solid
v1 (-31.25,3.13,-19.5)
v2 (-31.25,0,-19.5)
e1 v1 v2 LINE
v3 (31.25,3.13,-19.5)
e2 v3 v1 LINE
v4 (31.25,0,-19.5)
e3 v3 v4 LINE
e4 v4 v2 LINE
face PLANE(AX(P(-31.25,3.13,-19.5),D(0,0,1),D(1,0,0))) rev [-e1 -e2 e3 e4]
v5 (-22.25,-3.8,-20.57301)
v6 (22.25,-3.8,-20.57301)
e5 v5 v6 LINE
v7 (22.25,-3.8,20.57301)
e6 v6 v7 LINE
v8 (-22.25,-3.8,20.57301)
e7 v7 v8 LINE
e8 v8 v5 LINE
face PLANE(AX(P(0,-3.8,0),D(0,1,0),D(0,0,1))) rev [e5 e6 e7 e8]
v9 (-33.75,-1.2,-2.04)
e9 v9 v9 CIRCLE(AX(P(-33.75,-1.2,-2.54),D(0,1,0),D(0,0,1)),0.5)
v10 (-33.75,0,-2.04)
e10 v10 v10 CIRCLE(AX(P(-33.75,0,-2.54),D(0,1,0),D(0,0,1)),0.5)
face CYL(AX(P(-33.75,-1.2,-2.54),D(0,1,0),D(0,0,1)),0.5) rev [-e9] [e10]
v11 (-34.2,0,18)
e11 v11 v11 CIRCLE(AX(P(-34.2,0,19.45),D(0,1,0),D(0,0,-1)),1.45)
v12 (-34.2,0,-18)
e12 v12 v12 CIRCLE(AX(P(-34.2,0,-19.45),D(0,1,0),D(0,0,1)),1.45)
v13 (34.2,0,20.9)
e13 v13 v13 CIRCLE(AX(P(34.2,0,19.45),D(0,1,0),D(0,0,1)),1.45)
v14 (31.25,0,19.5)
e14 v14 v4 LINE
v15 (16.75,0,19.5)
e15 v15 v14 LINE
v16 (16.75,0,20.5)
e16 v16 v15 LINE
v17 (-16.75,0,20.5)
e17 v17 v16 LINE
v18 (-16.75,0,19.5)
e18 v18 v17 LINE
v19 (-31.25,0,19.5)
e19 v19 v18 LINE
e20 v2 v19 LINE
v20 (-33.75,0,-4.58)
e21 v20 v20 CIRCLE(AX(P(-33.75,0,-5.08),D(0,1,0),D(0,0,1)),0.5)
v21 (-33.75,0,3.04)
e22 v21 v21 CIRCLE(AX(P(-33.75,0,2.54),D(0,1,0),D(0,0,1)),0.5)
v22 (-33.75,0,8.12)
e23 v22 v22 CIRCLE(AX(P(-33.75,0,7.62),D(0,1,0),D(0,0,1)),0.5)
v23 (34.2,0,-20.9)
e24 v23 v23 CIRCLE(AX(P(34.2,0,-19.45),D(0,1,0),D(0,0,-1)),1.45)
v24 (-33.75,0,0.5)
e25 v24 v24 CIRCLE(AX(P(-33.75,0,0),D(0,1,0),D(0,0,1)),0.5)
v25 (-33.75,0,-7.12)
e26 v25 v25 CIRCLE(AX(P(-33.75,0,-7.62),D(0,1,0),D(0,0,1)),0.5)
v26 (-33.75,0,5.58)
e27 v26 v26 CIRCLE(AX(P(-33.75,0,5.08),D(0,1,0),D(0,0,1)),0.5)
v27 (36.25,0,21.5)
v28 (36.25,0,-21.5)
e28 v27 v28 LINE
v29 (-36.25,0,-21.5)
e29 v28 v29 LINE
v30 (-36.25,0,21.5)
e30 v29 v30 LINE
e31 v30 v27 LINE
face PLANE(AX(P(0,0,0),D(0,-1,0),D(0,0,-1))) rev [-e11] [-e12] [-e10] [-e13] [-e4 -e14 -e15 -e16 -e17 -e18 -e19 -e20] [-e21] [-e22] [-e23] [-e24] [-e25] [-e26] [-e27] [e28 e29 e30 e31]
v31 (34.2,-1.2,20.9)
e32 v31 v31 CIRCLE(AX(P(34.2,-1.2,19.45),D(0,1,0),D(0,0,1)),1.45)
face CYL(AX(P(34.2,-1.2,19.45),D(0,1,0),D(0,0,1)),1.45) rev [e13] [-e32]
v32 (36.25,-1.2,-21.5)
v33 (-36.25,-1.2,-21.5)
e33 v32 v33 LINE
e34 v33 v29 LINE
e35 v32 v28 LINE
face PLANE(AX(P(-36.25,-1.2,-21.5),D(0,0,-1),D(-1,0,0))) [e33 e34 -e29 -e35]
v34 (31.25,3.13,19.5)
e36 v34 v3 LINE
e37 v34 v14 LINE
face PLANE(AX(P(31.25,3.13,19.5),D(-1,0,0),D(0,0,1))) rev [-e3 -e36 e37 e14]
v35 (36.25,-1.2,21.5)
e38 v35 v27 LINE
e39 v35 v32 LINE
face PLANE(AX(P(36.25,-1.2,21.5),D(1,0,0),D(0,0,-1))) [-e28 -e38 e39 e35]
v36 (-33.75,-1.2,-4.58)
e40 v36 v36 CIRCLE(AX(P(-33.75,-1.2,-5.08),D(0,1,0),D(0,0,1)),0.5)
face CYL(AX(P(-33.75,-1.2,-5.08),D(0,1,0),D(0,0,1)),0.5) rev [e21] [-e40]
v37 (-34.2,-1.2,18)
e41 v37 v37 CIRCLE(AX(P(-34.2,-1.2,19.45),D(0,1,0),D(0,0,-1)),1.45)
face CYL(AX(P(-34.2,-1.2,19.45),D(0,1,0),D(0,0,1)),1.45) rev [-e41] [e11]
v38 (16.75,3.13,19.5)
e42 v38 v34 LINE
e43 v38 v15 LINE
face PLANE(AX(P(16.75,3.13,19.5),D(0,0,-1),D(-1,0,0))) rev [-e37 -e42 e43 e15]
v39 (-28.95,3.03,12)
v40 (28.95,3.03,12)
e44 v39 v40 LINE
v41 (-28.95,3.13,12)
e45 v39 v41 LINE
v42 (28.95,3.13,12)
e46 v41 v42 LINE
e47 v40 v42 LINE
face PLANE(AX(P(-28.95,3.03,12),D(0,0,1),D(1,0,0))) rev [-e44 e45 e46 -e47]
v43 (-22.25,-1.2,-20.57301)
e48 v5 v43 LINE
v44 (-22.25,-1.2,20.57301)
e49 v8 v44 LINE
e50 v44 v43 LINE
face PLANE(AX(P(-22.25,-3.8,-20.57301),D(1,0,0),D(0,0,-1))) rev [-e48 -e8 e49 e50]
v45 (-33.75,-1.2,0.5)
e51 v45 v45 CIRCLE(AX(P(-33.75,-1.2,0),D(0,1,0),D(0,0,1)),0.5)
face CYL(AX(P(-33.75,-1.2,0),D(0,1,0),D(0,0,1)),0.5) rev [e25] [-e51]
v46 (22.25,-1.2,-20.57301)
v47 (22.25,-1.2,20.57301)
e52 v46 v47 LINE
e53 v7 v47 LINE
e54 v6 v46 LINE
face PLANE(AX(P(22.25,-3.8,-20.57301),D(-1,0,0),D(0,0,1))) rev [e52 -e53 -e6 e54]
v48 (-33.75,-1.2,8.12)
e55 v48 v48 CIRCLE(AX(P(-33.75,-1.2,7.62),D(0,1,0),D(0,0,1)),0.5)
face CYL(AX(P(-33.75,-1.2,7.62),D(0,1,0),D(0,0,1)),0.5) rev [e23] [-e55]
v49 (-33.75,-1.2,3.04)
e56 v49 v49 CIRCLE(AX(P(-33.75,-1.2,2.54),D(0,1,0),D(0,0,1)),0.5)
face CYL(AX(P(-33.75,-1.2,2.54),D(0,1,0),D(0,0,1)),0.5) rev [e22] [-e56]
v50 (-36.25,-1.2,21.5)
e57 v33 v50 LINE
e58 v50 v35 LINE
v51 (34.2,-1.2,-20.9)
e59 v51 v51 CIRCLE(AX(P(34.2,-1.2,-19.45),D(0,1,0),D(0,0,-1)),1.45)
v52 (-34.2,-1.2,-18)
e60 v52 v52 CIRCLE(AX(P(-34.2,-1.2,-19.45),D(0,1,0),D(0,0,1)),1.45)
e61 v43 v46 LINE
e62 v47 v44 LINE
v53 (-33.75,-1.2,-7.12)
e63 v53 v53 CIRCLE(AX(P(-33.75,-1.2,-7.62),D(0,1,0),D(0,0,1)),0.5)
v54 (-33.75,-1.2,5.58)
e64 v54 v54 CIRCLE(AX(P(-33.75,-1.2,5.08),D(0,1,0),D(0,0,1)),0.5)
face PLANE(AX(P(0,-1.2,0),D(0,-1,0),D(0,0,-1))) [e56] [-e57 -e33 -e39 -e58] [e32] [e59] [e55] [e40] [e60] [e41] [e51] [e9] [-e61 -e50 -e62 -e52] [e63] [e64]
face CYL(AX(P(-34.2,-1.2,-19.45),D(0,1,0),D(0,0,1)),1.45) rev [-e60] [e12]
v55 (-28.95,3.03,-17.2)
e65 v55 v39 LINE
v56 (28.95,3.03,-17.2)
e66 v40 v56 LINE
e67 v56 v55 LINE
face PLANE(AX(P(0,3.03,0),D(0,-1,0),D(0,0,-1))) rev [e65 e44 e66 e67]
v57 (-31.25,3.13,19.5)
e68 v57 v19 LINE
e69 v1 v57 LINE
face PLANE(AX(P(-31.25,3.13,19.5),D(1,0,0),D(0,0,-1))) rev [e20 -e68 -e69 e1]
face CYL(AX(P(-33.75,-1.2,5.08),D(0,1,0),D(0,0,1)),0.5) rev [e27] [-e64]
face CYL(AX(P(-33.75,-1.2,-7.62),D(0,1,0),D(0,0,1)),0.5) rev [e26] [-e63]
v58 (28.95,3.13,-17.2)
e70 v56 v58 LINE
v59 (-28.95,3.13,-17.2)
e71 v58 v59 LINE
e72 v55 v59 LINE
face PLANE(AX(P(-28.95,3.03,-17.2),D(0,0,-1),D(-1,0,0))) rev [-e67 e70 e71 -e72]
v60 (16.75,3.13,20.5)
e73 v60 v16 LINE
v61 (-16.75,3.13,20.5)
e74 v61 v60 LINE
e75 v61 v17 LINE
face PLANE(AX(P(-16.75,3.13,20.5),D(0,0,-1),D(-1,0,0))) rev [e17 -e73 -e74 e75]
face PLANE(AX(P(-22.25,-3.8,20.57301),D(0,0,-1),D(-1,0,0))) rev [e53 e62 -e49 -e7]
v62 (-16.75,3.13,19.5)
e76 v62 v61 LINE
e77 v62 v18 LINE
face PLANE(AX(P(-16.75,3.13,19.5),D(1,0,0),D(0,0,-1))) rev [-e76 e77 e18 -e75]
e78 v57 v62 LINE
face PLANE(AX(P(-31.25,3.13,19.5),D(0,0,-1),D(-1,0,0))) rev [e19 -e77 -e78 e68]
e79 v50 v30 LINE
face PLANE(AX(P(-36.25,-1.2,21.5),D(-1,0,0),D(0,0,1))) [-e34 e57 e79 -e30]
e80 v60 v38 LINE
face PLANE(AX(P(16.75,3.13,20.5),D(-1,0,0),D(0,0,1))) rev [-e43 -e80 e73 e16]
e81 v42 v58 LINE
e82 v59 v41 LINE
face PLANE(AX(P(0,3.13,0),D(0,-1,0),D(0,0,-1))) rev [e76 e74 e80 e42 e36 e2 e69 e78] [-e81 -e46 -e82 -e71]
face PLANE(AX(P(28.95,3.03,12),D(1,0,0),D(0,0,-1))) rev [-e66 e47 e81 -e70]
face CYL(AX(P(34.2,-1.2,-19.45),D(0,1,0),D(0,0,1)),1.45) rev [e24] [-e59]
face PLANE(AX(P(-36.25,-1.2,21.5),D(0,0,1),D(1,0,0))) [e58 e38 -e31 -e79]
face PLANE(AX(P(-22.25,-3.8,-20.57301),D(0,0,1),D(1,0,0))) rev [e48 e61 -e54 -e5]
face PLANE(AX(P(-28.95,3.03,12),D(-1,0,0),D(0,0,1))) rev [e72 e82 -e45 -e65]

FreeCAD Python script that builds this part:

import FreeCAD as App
import Part
import Sketcher
from FreeCAD import Vector
Q = App.Units.Quantity

doc = App.newDocument("Part")
params = doc.addObject("Spreadsheet::Sheet", "Params")
for row, (alias, value) in enumerate([
    ("sketch1_diameter", "1 mm"),
    ("sketch1_diameter2", "2.9 mm"),
    ("sketch1_height", "43 mm"),
    ("sketch1_width", "72.5 mm"),
    ("pad1_length", "1.2 mm"),
    ("sketch2_width", "44.5 mm"),
    ("pad2_length", "2.6 mm"),
    ("sketch3_height", "1 mm"),
    ("sketch3_height2", "39 mm"),
    ("sketch3_width", "33.5 mm"),
    ("sketch3_width2", "14.5 mm"),
    ("pad3_length", "3.13 mm"),
    ("sketch4_width", "57.9 mm"),
    ("sketch4_height", "29.2 mm"),
    ("pocket1_length", "0.1 mm"),
], start=1):
    params.set(f"A{row}", alias)
    params.set(f"B{row}", "=" + value)
    params.setAlias(f"B{row}", alias)

body = doc.addObject("PartDesign::Body", "Body")

# Sketch on XZ plane
sketch1 = body.newObject("Sketcher::SketchObject", "Sketch")
sketch1.AttachmentSupport = (doc.getObject("XZ_Plane"), [""])
sketch1.MapMode = "FlatFace"
sketch1.addGeometry([
    Part.LineSegment(Vector(-36.2, -21.5, 0), Vector(-36.2, 21.5, 0)),  # 0
    Part.LineSegment(Vector(-36.2, 21.5, 0), Vector(36.2, 21.5, 0)),  # 1
    Part.LineSegment(Vector(36.2, 21.5, 0), Vector(36.2, -21.5, 0)),  # 2
    Part.LineSegment(Vector(36.2, -21.5, 0), Vector(-36.2, -21.5, 0)),  # 3
    Part.Circle(Vector(-34.2, 19.4, 0), Vector(0, 0, 1), 1.4),  # 4
    Part.Circle(Vector(-33.8, 7.6, 0), Vector(0, 0, 1), 0.5),  # 5
    Part.Circle(Vector(-33.8, 5.1, 0), Vector(0, 0, 1), 0.5),  # 6
    Part.Circle(Vector(-33.8, 2.5, 0), Vector(0, 0, 1), 0.5),  # 7
    Part.Circle(Vector(34.2, 19.4, 0), Vector(0, 0, 1), 1.4),  # 8
    Part.Circle(Vector(-33.8, 0, 0), Vector(0, 0, 1), 0.5),  # 9
    Part.Circle(Vector(-33.8, -2.5, 0), Vector(0, 0, 1), 0.5),  # 10
    Part.Circle(Vector(-33.8, -5.1, 0), Vector(0, 0, 1), 0.5),  # 11
    Part.Circle(Vector(-33.8, -7.6, 0), Vector(0, 0, 1), 0.5),  # 12
    Part.Circle(Vector(-34.2, -19.4, 0), Vector(0, 0, 1), 1.4),  # 13
    Part.Circle(Vector(34.2, -19.4, 0), Vector(0, 0, 1), 1.4),  # 14
], False)
sketch1.addConstraint([
    Sketcher.Constraint("Coincident", 0, 2, 1, 1),
    Sketcher.Constraint("Coincident", 1, 2, 2, 1),
    Sketcher.Constraint("Coincident", 2, 2, 3, 1),
    Sketcher.Constraint("Coincident", 3, 2, 0, 1),
    Sketcher.Constraint("Vertical", 0),
    Sketcher.Constraint("Horizontal", 1),
    Sketcher.Constraint("Vertical", 2),
    Sketcher.Constraint("Horizontal", 3),
    Sketcher.Constraint("Equal", 5, 6),
    Sketcher.Constraint("Equal", 6, 7),
    Sketcher.Constraint("Equal", 4, 8),
    Sketcher.Constraint("Equal", 7, 9),
    Sketcher.Constraint("Equal", 9, 10),
    Sketcher.Constraint("Equal", 10, 11),
    Sketcher.Constraint("Equal", 11, 12),
    Sketcher.Constraint("Equal", 8, 13),
    Sketcher.Constraint("Equal", 13, 14),
    Sketcher.Constraint("Symmetric", 8, 3, 13, 3, -1, 1),
    Sketcher.Constraint("Symmetric", 4, 3, 14, 3, -1, 1),
    Sketcher.Constraint("Symmetric", 0, 2, 2, 2, -1, 1),
    Sketcher.Constraint("Symmetric", 4, 3, 8, 3, -2),
    Sketcher.Constraint("Symmetric", 7, 3, 10, 3, -1),
    Sketcher.Constraint("Symmetric", 6, 3, 11, 3, -1),
    Sketcher.Constraint("Symmetric", 5, 3, 12, 3, -1),
    Sketcher.Constraint("PointOnObject", 9, 3, -1),
    Sketcher.Constraint("Vertical", 5, 3, 6, 3),
    Sketcher.Constraint("Vertical", 6, 3, 7, 3),
    Sketcher.Constraint("Vertical", 7, 3, 9, 3),
    Sketcher.Constraint("Diameter", 5, Q("1 mm")),
    Sketcher.Constraint("Diameter", 4, Q("2.9 mm")),
    Sketcher.Constraint("DistanceY", 0, 1, 0, 2, Q("43 mm")),
    Sketcher.Constraint("DistanceX", 1, 1, 1, 2, Q("72.5 mm")),
    Sketcher.Constraint("DistanceX", 5, 3, 1, 2, Q("70 mm")),
    Sketcher.Constraint("DistanceX", 4, 3, -1, 1, Q("34.2 mm")),
    Sketcher.Constraint("DistanceY", 11, 3, 5, 3, Q("12.7 mm")),
    Sketcher.Constraint("DistanceY", 14, 3, 8, 3, Q("38.9 mm")),
    Sketcher.Constraint("DistanceY", -1, 1, 5, 3, Q("7.62 mm")),
    Sketcher.Constraint("DistanceY", -1, 1, 7, 3, Q("2.54 mm")),
])
sketch1.setExpression("Constraints[28]", "Params.sketch1_diameter")
sketch1.setExpression("Constraints[29]", "Params.sketch1_diameter2")
sketch1.setExpression("Constraints[30]", "Params.sketch1_height")
sketch1.setExpression("Constraints[31]", "Params.sketch1_width")
pad1 = body.newObject("PartDesign::Pad", "Pad")
pad1.Profile = sketch1
pad1.setExpression("Length", "Params.pad1_length")

# Sketch on XZ plane
sketch2 = body.newObject("Sketcher::SketchObject", "Sketch001")
sketch2.AttachmentSupport = (doc.getObject("XZ_Plane"), [""])
sketch2.MapMode = "FlatFace"
sketch2.AttachmentOffset = App.Placement(Vector(0, 0, 1.2), App.Rotation())
sketch2.addGeometry([
    Part.LineSegment(Vector(-22, 21, 0), Vector(-22, -21, 0)),
    Part.LineSegment(Vector(-22, -21, 0), Vector(22, -21, 0)),
    Part.LineSegment(Vector(22, -21, 0), Vector(22, 21, 0)),
    Part.LineSegment(Vector(22, 21, 0), Vector(-22, 21, 0)),
], False)
sketch2.addConstraint([
    Sketcher.Constraint("Coincident", 0, 2, 1, 1),
    Sketcher.Constraint("Coincident", 1, 2, 2, 1),
    Sketcher.Constraint("Coincident", 2, 2, 3, 1),
    Sketcher.Constraint("Coincident", 3, 2, 0, 1),
    Sketcher.Constraint("Vertical", 0),
    Sketcher.Constraint("Horizontal", 1),
    Sketcher.Constraint("Vertical", 2),
    Sketcher.Constraint("Horizontal", 3),
    Sketcher.Constraint("Symmetric", 0, 2, 2, 2, -1, 1),
    Sketcher.Constraint("DistanceX", 1, 1, 1, 2, Q("44.5 mm")),
    Sketcher.Constraint("DistanceY", 0, 2, 0, 1, Q("41.146019 mm")),
])
sketch2.setExpression("Constraints[9]", "Params.sketch2_width")
pad2 = body.newObject("PartDesign::Pad", "Pad001")
pad2.Profile = sketch2
pad2.setExpression("Length", "Params.pad2_length")

# Sketch on XZ plane
sketch3 = body.newObject("Sketcher::SketchObject", "Sketch002")
sketch3.AttachmentSupport = (doc.getObject("XZ_Plane"), [""])
sketch3.MapMode = "FlatFace"
sketch3.addGeometry([
    Part.LineSegment(Vector(-16.8, 19.5, 0), Vector(-16.8, 20.5, 0)),  # 0
    Part.LineSegment(Vector(-16.8, 20.5, 0), Vector(16.8, 20.5, 0)),  # 1
    Part.LineSegment(Vector(16.8, 20.5, 0), Vector(16.8, 19.5, 0)),  # 2
    Part.LineSegment(Vector(16.8, 19.5, 0), Vector(31.2, 19.5, 0)),  # 3
    Part.LineSegment(Vector(31.2, 19.5, 0), Vector(31.2, -19.5, 0)),  # 4
    Part.LineSegment(Vector(31.2, -19.5, 0), Vector(-31.2, -19.5, 0)),  # 5
    Part.LineSegment(Vector(-31.2, -19.5, 0), Vector(-31.2, 19.5, 0)),  # 6
    Part.LineSegment(Vector(-31.2, 19.5, 0), Vector(-16.8, 19.5, 0)),  # 7
], False)
sketch3.addConstraint([
    Sketcher.Constraint("Coincident", 0, 2, 1, 1),
    Sketcher.Constraint("Coincident", 1, 2, 2, 1),
    Sketcher.Constraint("Coincident", 2, 2, 3, 1),
    Sketcher.Constraint("Coincident", 3, 2, 4, 1),
    Sketcher.Constraint("Coincident", 4, 2, 5, 1),
    Sketcher.Constraint("Coincident", 5, 2, 6, 1),
    Sketcher.Constraint("Coincident", 6, 2, 7, 1),
    Sketcher.Constraint("Coincident", 7, 2, 0, 1),
    Sketcher.Constraint("Vertical", 0),
    Sketcher.Constraint("Horizontal", 1),
    Sketcher.Constraint("Vertical", 2),
    Sketcher.Constraint("Horizontal", 3),
    Sketcher.Constraint("Vertical", 4),
    Sketcher.Constraint("Horizontal", 5),
    Sketcher.Constraint("Vertical", 6),
    Sketcher.Constraint("Horizontal", 7),
    Sketcher.Constraint("Symmetric", 3, 2, 5, 2, -1, 1),
    Sketcher.Constraint("Symmetric", 2, 2, 7, 2, -2),
    Sketcher.Constraint("DistanceY", 0, 1, 0, 2, Q("1 mm")),
    Sketcher.Constraint("DistanceY", 4, 2, 4, 1, Q("39 mm")),
    Sketcher.Constraint("DistanceX", 1, 1, 1, 2, Q("33.5 mm")),
    Sketcher.Constraint("DistanceX", 3, 1, 3, 2, Q("14.5 mm")),
])
sketch3.setExpression("Constraints[18]", "Params.sketch3_height")
sketch3.setExpression("Constraints[19]", "Params.sketch3_height2")
sketch3.setExpression("Constraints[20]", "Params.sketch3_width")
sketch3.setExpression("Constraints[21]", "Params.sketch3_width2")
pad3 = body.newObject("PartDesign::Pad", "Pad002")
pad3.Profile = sketch3
pad3.setExpression("Length", "Params.pad3_length")
pad3.Reversed = True

# Sketch on XZ plane
sketch4 = body.newObject("Sketcher::SketchObject", "Sketch003")
sketch4.AttachmentSupport = (doc.getObject("XZ_Plane"), [""])
sketch4.MapMode = "FlatFace"
sketch4.AttachmentOffset = App.Placement(Vector(0, 0, -3.13), App.Rotation())
sketch4.addGeometry([
    Part.LineSegment(Vector(-29, -17, 0), Vector(-29, 12, 0)),
    Part.LineSegment(Vector(-29, 12, 0), Vector(29, 12, 0)),
    Part.LineSegment(Vector(29, 12, 0), Vector(29, -17, 0)),
    Part.LineSegment(Vector(29, -17, 0), Vector(-29, -17, 0)),
], False)
sketch4.addConstraint([
    Sketcher.Constraint("Coincident", 0, 2, 1, 1),
    Sketcher.Constraint("Coincident", 1, 2, 2, 1),
    Sketcher.Constraint("Coincident", 2, 2, 3, 1),
    Sketcher.Constraint("Coincident", 3, 2, 0, 1),
    Sketcher.Constraint("Vertical", 0),
    Sketcher.Constraint("Horizontal", 1),
    Sketcher.Constraint("Vertical", 2),
    Sketcher.Constraint("Horizontal", 3),
    Sketcher.Constraint("DistanceX", 1, 1, 1, 2, Q("57.9 mm")),
    Sketcher.Constraint("DistanceY", 0, 1, 0, 2, Q("29.2 mm")),
    Sketcher.Constraint("DistanceY", -1, 1, 0, 2, Q("12 mm")),
    Sketcher.Constraint("DistanceX", 0, 2, -1, 1, Q("28.95 mm")),
])
sketch4.setExpression("Constraints[8]", "Params.sketch4_width")
sketch4.setExpression("Constraints[9]", "Params.sketch4_height")
pocket1 = body.newObject("PartDesign::Pocket", "Pocket")
pocket1.Profile = sketch4
pocket1.setExpression("Length", "Params.pocket1_length")
pocket1.Reversed = True

doc.recompute()
